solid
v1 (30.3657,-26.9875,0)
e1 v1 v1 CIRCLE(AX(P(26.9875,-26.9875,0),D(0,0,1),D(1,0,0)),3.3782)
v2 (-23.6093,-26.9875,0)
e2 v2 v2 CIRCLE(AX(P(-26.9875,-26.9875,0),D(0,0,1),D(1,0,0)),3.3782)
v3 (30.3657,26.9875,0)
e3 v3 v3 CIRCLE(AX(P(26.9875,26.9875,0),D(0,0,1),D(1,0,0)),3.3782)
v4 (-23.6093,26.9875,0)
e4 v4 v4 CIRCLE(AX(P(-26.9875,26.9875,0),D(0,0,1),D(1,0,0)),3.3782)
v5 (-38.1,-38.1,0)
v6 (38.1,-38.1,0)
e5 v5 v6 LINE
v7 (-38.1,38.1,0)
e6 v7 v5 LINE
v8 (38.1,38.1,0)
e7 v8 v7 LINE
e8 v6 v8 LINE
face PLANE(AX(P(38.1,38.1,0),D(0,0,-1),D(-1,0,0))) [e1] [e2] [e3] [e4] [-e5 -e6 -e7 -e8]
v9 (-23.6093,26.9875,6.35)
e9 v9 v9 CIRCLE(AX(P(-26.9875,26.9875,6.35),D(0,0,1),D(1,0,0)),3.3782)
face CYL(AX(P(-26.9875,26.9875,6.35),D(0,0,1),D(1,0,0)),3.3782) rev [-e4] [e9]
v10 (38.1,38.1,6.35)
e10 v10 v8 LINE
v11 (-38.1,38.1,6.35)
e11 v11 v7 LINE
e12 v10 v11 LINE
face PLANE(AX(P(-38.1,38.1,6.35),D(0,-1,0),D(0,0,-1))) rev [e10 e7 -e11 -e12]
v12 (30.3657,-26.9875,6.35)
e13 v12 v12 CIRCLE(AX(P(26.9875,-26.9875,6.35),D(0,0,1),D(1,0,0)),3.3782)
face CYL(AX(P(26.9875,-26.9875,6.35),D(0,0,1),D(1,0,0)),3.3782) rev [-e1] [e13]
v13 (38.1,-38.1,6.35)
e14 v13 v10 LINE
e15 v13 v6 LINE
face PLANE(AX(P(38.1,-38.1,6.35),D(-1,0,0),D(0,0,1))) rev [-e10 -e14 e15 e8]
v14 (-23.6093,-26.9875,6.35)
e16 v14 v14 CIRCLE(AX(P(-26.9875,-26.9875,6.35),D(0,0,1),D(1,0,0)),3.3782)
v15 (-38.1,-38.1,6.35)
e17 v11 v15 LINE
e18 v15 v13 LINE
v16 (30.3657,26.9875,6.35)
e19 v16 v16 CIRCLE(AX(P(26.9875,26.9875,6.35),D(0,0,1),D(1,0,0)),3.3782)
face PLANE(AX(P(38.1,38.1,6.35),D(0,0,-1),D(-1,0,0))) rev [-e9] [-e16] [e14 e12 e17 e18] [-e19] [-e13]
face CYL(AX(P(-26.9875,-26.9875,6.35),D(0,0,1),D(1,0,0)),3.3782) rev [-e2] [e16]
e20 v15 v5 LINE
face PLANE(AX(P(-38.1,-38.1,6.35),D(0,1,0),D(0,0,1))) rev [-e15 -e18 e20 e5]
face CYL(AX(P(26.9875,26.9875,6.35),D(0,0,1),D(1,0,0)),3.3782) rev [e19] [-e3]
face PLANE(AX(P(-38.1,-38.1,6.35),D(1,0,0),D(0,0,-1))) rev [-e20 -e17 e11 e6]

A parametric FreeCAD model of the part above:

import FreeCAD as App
import Part
import Sketcher

V = App.Vector
Q = App.Units.Quantity

doc = App.newDocument("Part")
body = doc.addObject("PartDesign::Body", "Body")

sketch1 = body.newObject("Sketcher::SketchObject", "Sketch")
sketch1.AttachmentSupport = (doc.getObject("XY_Plane"), [""])
sketch1.MapMode = "FlatFace"
sketch1.addGeometry([
    Part.LineSegment(V(-38, 38, 0), V(-38, -38, 0)),
    Part.LineSegment(V(-38, -38, 0), V(38, -38, 0)),
    Part.LineSegment(V(38, -38, 0), V(38, 38, 0)),
    Part.LineSegment(V(38, 38, 0), V(-38, 38, 0)),
], False)
sketch1.addConstraint([
    Sketcher.Constraint("Coincident", 0, 2, 1, 1),
    Sketcher.Constraint("Coincident", 1, 2, 2, 1),
    Sketcher.Constraint("Coincident", 2, 2, 3, 1),
    Sketcher.Constraint("Coincident", 3, 2, 0, 1),
    Sketcher.Constraint("Vertical", 0),
    Sketcher.Constraint("Horizontal", 1),
    Sketcher.Constraint("Vertical", 2),
    Sketcher.Constraint("Horizontal", 3),
    Sketcher.Constraint("Symmetric", 0, 2, 2, 2, -1, 1),
    Sketcher.Constraint("Equal", 3, 0),
    Sketcher.Constraint("DistanceX", 1, 1, 1, 2, Q("3 in")),
])
pad1 = body.newObject("PartDesign::Pad", "Pad")
pad1.Profile = sketch1
pad1.Length = Q("0.25 in")

sketch2 = body.newObject("Sketcher::SketchObject", "Sketch001")
sketch2.AttachmentSupport = (doc.getObject("XY_Plane"), [""])
sketch2.MapMode = "FlatFace"
sketch2.AttachmentOffset = App.Placement(V(0, 0, 0.25 * 25.4), App.Rotation())
sketch2.addGeometry([
    Part.Circle(V(-27, 27, 0), V(0, 0, 1), 3.4),
    Part.Circle(V(27, 27, 0), V(0, 0, 1), 3.4),
    Part.Circle(V(27, -27, 0), V(0, 0, 1), 3.4),
    Part.Circle(V(-27, -27, 0), V(0, 0, 1), 3.4),
], False)
sketch2.addConstraint([
    Sketcher.Constraint("Equal", 0, 1),
    Sketcher.Constraint("Equal", 1, 2),
    Sketcher.Constraint("Equal", 2, 3),
    Sketcher.Constraint("Symmetric", 0, 3, 2, 3, -1, 1),
    Sketcher.Constraint("Symmetric", 1, 3, 3, 3, -1, 1),
    Sketcher.Constraint("Symmetric", 0, 3, 1, 3, -2),
    Sketcher.Constraint("Diameter", 0, Q("0.266 in")),
    Sketcher.Constraint("DistanceX", 0, 3, -1, 1, Q("1.0625 in")),
    Sketcher.Constraint("DistanceY", -1, 1, 0, 3, Q("1.0625 in")),
])
doc.recompute()
hole = body.newObject("PartDesign::Hole", "Hole")
hole.Profile = sketch2
hole.ThreadType = "None"
hole.Diameter = Q("0.266 in")
hole.DepthType = "ThroughAll"

doc.recompute()
